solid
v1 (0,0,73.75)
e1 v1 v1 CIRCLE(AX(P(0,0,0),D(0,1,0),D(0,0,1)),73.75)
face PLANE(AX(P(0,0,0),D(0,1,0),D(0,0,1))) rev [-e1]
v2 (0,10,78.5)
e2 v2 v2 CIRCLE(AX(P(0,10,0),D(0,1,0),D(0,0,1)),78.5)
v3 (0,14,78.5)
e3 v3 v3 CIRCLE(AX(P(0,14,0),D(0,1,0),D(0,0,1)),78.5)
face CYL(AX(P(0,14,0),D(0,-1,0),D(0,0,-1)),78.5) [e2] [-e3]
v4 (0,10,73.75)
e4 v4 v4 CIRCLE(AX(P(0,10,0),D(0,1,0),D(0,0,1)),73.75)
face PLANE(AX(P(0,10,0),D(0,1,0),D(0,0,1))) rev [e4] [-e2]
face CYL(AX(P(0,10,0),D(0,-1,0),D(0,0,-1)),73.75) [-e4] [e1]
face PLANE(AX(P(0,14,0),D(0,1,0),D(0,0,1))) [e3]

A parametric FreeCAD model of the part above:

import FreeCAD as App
import Part
import Sketcher
from FreeCAD import Vector

doc = App.newDocument("Part")
body = doc.addObject("PartDesign::Body", "Body")

sketch1 = body.newObject("Sketcher::SketchObject", "Sketch")
sketch1.AttachmentSupport = (doc.getObject("XZ_Plane"), [""])
sketch1.MapMode = "FlatFace"
sketch1.addGeometry(Part.Circle(Vector(0, 0, 0), Vector(0, 0, 1), 74), False)
sketch1.addConstraint([
    Sketcher.Constraint("Coincident", 0, 3, -1, 1),
    Sketcher.Constraint("Diameter", 0, 147.5),
])
pad1 = body.newObject("PartDesign::Pad", "Pad")
pad1.Profile = sketch1
pad1.Length = 10
pad1.Reversed = True

sketch2 = body.newObject("Sketcher::SketchObject", "Sketch001")
sketch2.AttachmentSupport = (doc.getObject("XZ_Plane"), [""])
sketch2.MapMode = "FlatFace"
sketch2.AttachmentOffset = App.Placement(Vector(0, 0, -10), App.Rotation())
sketch2.addGeometry(Part.Circle(Vector(0, 0, 0), Vector(0, 0, 1), 78), False)
sketch2.addConstraint([
    Sketcher.Constraint("Coincident", 0, 3, -1, 1),
    Sketcher.Constraint("Diameter", 0, 157.0),
])
pad2 = body.newObject("PartDesign::Pad", "Pad001")
pad2.Profile = sketch2
pad2.Length = 4
pad2.Reversed = True

doc.recompute()
